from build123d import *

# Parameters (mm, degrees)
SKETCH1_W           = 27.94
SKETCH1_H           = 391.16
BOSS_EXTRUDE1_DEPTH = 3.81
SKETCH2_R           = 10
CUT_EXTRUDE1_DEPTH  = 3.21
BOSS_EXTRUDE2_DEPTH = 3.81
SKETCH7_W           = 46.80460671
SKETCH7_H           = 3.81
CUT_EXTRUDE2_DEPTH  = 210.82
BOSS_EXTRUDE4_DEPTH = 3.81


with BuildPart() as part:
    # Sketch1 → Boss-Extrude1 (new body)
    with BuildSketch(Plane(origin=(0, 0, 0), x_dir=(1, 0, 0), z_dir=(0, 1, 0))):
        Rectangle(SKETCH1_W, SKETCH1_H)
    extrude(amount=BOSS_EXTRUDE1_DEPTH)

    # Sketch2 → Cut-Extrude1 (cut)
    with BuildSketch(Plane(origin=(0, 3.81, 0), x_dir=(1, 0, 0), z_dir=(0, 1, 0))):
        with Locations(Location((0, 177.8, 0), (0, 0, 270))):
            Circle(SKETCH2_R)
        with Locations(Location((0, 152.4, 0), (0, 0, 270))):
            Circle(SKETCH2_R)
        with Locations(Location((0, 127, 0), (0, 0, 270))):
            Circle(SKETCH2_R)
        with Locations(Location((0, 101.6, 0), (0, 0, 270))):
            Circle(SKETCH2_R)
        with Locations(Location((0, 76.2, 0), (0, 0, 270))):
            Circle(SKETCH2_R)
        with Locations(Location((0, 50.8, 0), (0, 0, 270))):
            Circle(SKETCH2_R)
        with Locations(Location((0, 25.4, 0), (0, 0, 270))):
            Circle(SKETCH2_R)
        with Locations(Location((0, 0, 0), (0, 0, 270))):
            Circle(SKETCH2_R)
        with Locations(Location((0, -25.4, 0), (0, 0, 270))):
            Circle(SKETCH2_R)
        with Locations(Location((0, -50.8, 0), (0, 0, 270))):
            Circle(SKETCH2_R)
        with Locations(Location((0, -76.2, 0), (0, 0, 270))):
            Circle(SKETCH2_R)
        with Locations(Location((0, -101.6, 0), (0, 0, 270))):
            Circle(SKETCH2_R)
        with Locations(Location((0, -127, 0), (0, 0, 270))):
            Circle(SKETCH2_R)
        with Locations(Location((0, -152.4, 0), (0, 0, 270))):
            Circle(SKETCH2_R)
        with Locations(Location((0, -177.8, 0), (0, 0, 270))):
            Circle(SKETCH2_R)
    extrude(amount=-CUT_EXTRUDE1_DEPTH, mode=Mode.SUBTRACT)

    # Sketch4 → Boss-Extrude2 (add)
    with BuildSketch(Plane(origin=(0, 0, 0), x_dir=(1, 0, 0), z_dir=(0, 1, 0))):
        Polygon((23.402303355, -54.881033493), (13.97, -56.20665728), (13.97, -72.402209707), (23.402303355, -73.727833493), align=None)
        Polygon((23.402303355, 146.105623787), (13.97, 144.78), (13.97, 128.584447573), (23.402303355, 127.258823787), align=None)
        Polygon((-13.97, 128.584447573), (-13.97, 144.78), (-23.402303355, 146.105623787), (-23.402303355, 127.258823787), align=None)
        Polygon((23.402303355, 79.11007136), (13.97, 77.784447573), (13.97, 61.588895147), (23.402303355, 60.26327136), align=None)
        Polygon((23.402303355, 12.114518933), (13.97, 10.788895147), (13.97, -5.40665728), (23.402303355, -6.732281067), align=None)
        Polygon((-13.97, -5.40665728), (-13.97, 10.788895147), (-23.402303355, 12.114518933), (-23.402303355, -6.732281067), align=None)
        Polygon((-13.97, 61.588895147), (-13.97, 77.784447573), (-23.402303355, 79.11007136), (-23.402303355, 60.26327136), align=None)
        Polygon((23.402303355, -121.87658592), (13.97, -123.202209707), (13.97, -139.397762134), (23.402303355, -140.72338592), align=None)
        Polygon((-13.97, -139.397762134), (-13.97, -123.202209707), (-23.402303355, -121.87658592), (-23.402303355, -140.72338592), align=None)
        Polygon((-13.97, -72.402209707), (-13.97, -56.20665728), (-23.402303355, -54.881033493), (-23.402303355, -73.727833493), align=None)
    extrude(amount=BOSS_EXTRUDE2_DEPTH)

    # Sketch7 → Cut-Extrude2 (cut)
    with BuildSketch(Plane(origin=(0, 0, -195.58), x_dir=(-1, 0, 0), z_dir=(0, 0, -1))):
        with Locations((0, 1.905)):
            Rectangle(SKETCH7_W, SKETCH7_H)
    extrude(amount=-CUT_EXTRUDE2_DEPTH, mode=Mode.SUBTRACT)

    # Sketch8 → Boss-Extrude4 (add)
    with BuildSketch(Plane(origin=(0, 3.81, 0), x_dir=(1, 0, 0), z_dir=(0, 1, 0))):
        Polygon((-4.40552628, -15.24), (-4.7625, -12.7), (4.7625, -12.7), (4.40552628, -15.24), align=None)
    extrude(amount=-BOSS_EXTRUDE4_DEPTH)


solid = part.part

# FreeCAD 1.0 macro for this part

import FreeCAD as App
import Part
import Sketcher

V = App.Vector
Q = App.Units.Quantity


def add_polygon(sketch, points):
    """Adds a closed chain of lines whose ends are joined by coincident constraints."""
    first, n = sketch.GeometryCount, len(points)
    for a, b in zip(points, points[1:] + points[:1]):
        sketch.addGeometry(Part.LineSegment(App.Vector(*a, 0), App.Vector(*b, 0)), False)
    for i in range(n):
        sketch.addConstraint(Sketcher.Constraint("Coincident", first + i, 2, first + (i + 1) % n, 1))

doc = App.newDocument("Part")
body = doc.addObject("PartDesign::Body", "Body")

sketch1 = doc.addObject("Sketcher::SketchObject", "Sketch")
body.addObject(sketch1)
sketch1.AttachmentSupport = (doc.XZ_Plane, [""])
sketch1.MapMode = "FlatFace"
add_polygon(sketch1, [(-14, -196), (-14, 196), (14, 196), (14, -196)])
sketch1.addConstraint([
    Sketcher.Constraint("Vertical", 0),
    Sketcher.Constraint("Horizontal", 1),
    Sketcher.Constraint("Vertical", 2),
    Sketcher.Constraint("Horizontal", 3),
    Sketcher.Constraint("Symmetric", 0, 2, 2, 2, -1, 1),
    Sketcher.Constraint("DistanceX", 1, 1, 1, 2, Q("1.1 in")),
    Sketcher.Constraint("DistanceY", 0, 1, 0, 2, Q("15.4 in")),
])
pad1 = doc.addObject("PartDesign::Pad", "Pad")
body.addObject(pad1)
pad1.Profile = sketch1
pad1.Length = Q("0.15 in")
pad1.Reversed = True

sketch2 = doc.addObject("Sketcher::SketchObject", "Sketch001")
body.addObject(sketch2)
sketch2.AttachmentSupport = (doc.XZ_Plane, [""])
sketch2.MapMode = "FlatFace"
sketch2.AttachmentOffset = App.Placement(V(0, 0, -0.15 * 25.4), App.Rotation())
sketch2.addGeometry([
    Part.Circle(V(0, -178, 0), V(0, 0, 1), 10),
    Part.Circle(V(0, -152, 0), V(0, 0, 1), 10),
    Part.Circle(V(0, -127, 0), V(0, 0, 1), 10),
    Part.Circle(V(0, -102, 0), V(0, 0, 1), 10),
    Part.Circle(V(0, -76, 0), V(0, 0, 1), 10),
    Part.Circle(V(0, -51, 0), V(0, 0, 1), 10),
    Part.Circle(V(0, -25, 0), V(0, 0, 1), 10),
    Part.Circle(V(0, 0, 0), V(0, 0, 1), 10),
    Part.Circle(V(0, 25, 0), V(0, 0, 1), 10),
    Part.Circle(V(0, 51, 0), V(0, 0, 1), 10),
    Part.Circle(V(0, 76, 0), V(0, 0, 1), 10),
    Part.Circle(V(0, 102, 0), V(0, 0, 1), 10),
    Part.Circle(V(0, 127, 0), V(0, 0, 1), 10),
    Part.Circle(V(0, 152, 0), V(0, 0, 1), 10),
    Part.Circle(V(0, 178, 0), V(0, 0, 1), 10),
], False)
sketch2.addConstraint([
    Sketcher.Constraint("Coincident", 7, 3, -1, 1),
    Sketcher.Constraint("Equal", 0, 1),
    Sketcher.Constraint("Equal", 1, 2),
    Sketcher.Constraint("Equal", 2, 3),
    Sketcher.Constraint("Equal", 3, 4),
    Sketcher.Constraint("Equal", 4, 5),
    Sketcher.Constraint("Equal", 5, 6),
    Sketcher.Constraint("Equal", 6, 7),
    Sketcher.Constraint("Equal", 7, 8),
    Sketcher.Constraint("Equal", 8, 9),
    Sketcher.Constraint("Equal", 9, 10),
    Sketcher.Constraint("Equal", 10, 11),
    Sketcher.Constraint("Equal", 11, 12),
    Sketcher.Constraint("Equal", 12, 13),
    Sketcher.Constraint("Equal", 13, 14),
    Sketcher.Constraint("Symmetric", 6, 3, 8, 3, -1, 1),
    Sketcher.Constraint("Symmetric", 5, 3, 9, 3, -1, 1),
    Sketcher.Constraint("Symmetric", 4, 3, 10, 3, -1, 1),
    Sketcher.Constraint("Symmetric", 3, 3, 11, 3, -1, 1),
    Sketcher.Constraint("Symmetric", 2, 3, 12, 3, -1, 1),
    Sketcher.Constraint("Symmetric", 1, 3, 13, 3, -1, 1),
    Sketcher.Constraint("Symmetric", 0, 3, 14, 3, -1, 1),
    Sketcher.Constraint("PointOnObject", 0, 3, -2),
    Sketcher.Constraint("PointOnObject", 1, 3, -2),
    Sketcher.Constraint("PointOnObject", 2, 3, -2),
    Sketcher.Constraint("PointOnObject", 3, 3, -2),
    Sketcher.Constraint("PointOnObject", 4, 3, -2),
    Sketcher.Constraint("PointOnObject", 5, 3, -2),
    Sketcher.Constraint("PointOnObject", 6, 3, -2),
    Sketcher.Constraint("DistanceY", 0, 3, -1, 1, Q("7 in")),
    Sketcher.Constraint("DistanceY", 1, 3, -1, 1, Q("6 in")),
    Sketcher.Constraint("DistanceY", 2, 3, -1, 1, Q("5 in")),
    Sketcher.Constraint("DistanceY", 3, 3, -1, 1, Q("4 in")),
    Sketcher.Constraint("DistanceY", 4, 3, -1, 1, Q("3 in")),
    Sketcher.Constraint("DistanceY", 5, 3, -1, 1, Q("2 in")),
    Sketcher.Constraint("DistanceY", 6, 3, -1, 1, Q("1 in")),
    Sketcher.Constraint("Diameter", 0, 20.0),
])
pocket1 = doc.addObject("PartDesign::Pocket", "Pocket")
body.addObject(pocket1)
pocket1.Profile = sketch2
pocket1.Length = 3.21
pocket1.Reversed = True

sketch3 = doc.addObject("Sketcher::SketchObject", "Sketch002")
body.addObject(sketch3)
sketch3.AttachmentSupport = (doc.XZ_Plane, [""])
sketch3.MapMode = "FlatFace"
add_polygon(sketch3, [(23, 55), (14, 56), (14, 72), (23, 74)])
add_polygon(sketch3, [(23, -146), (14, -145), (14, -129), (23, -127)])
add_polygon(sketch3, [(-14, -129), (-14, -145), (-23, -146), (-23, -127)])
add_polygon(sketch3, [(23, -79), (14, -78), (14, -62), (23, -60)])
add_polygon(sketch3, [(23, -12), (14, -11), (14, 5), (23, 7)])
add_polygon(sketch3, [(-14, 5), (-14, -11), (-23, -12), (-23, 7)])
add_polygon(sketch3, [(-14, -62), (-14, -78), (-23, -79), (-23, -60)])
add_polygon(sketch3, [(23, 122), (14, 123), (14, 139), (23, 141)])
add_polygon(sketch3, [(-14, 139), (-14, 123), (-23, 122), (-23, 141)])
add_polygon(sketch3, [(-14, 72), (-14, 56), (-23, 55), (-23, 74)])
sketch3.addConstraint([
    Sketcher.Constraint("Vertical", 1),
    Sketcher.Constraint("Vertical", 3),
    Sketcher.Constraint("Vertical", 5),
    Sketcher.Constraint("Vertical", 7),
    Sketcher.Constraint("Vertical", 8),
    Sketcher.Constraint("Vertical", 10),
    Sketcher.Constraint("Vertical", 13),
    Sketcher.Constraint("Vertical", 15),
    Sketcher.Constraint("Vertical", 17),
    Sketcher.Constraint("Vertical", 19),
    Sketcher.Constraint("Vertical", 20),
    Sketcher.Constraint("Vertical", 22),
    Sketcher.Constraint("Vertical", 24),
    Sketcher.Constraint("Vertical", 26),
    Sketcher.Constraint("Vertical", 29),
    Sketcher.Constraint("Vertical", 31),
    Sketcher.Constraint("Vertical", 32),
    Sketcher.Constraint("Vertical", 34),
    Sketcher.Constraint("Vertical", 36),
    Sketcher.Constraint("Vertical", 38),
    Sketcher.Constraint("Symmetric", 4, 2, 8, 2, -2),
    Sketcher.Constraint("Symmetric", 7, 2, 9, 2, -2),
    Sketcher.Constraint("Symmetric", 16, 2, 20, 2, -2),
    Sketcher.Constraint("Symmetric", 19, 2, 21, 2, -2),
    Sketcher.Constraint("Symmetric", 12, 2, 24, 2, -2),
    Sketcher.Constraint("Symmetric", 15, 2, 25, 2, -2),
    Sketcher.Constraint("Symmetric", 28, 2, 32, 2, -2),
    Sketcher.Constraint("Symmetric", 31, 2, 33, 2, -2),
    Sketcher.Constraint("Symmetric", 0, 2, 36, 2, -2),
    Sketcher.Constraint("Symmetric", 3, 2, 37, 2, -2),
    Sketcher.Constraint("Parallel", 0, 4),
    Sketcher.Constraint("Parallel", 2, 6),
    Sketcher.Constraint("Parallel", 6, 9),
    Sketcher.Constraint("Parallel", 4, 11),
    Sketcher.Constraint("Parallel", 11, 12),
    Sketcher.Constraint("Parallel", 9, 14),
    Sketcher.Constraint("Parallel", 12, 16),
    Sketcher.Constraint("Parallel", 14, 18),
    Sketcher.Constraint("Parallel", 16, 23),
    Sketcher.Constraint("Parallel", 23, 27),
    Sketcher.Constraint("Parallel", 27, 28),
    Sketcher.Constraint("Parallel", 25, 30),
    Sketcher.Constraint("Parallel", 28, 35),
    Sketcher.Constraint("Parallel", 35, 39),
    Sketcher.Constraint("Horizontal", 6, 2, 10, 2),
    Sketcher.Constraint("Horizontal", 18, 2, 22, 2),
    Sketcher.Constraint("Horizontal", 14, 2, 26, 2),
    Sketcher.Constraint("Horizontal", 30, 2, 34, 2),
    Sketcher.Constraint("Horizontal", 2, 2, 38, 2),
    Sketcher.Constraint("Vertical", 1, 2, 4, 2),
    Sketcher.Constraint("Vertical", 3, 2, 6, 2),
    Sketcher.Constraint("Vertical", 5, 2, 12, 2),
    Sketcher.Constraint("Vertical", 7, 2, 14, 2),
    Sketcher.Constraint("Vertical", 13, 2, 16, 2),
    Sketcher.Constraint("Vertical", 15, 2, 18, 2),
    Sketcher.Constraint("Vertical", 17, 2, 28, 2),
    Sketcher.Constraint("Vertical", 19, 2, 30, 2),
    Sketcher.Constraint("Equal", 1, 5),
    Sketcher.Constraint("Equal", 8, 13),
    Sketcher.Constraint("Equal", 13, 17),
    Sketcher.Constraint("Equal", 24, 29),
    Sketcher.Constraint("Angle", 0, Q("172 deg")),
    Sketcher.Constraint("DistanceY", 5, 2, 12, 2, Q("2 in")),
    Sketcher.Constraint("DistanceY", 13, 2, 16, 2, Q("2 in")),
    Sketcher.Constraint("DistanceY", 17, 2, 0, 2, Q("2 in")),
    Sketcher.Constraint("DistanceY", 1, 2, 28, 2, Q("2 in")),
    Sketcher.Constraint("DistanceY", 4, 2, -1, 1, Q("5.7 in")),
    Sketcher.Constraint("DistanceX", 8, 2, 4, 2, Q("1.1 in")),
    Sketcher.Constraint("DistanceY", 3, 2, 3, 1, Q("0.742 in")),
    Sketcher.Constraint("Distance", 0, Q("0.375 in")),
])
pad2 = doc.addObject("PartDesign::Pad", "Pad001")
body.addObject(pad2)
pad2.Profile = sketch3
pad2.Length = Q("0.15 in")
pad2.Reversed = True

sketch4 = doc.addObject("Sketcher::SketchObject", "Sketch003")
body.addObject(sketch4)
sketch4.AttachmentSupport = (doc.XY_Plane, [""])
sketch4.MapMode = "FlatFace"
sketch4.AttachmentOffset = App.Placement(V(0, 0, -7.7 * 25.4), App.Rotation())
add_polygon(sketch4, [(23.4, 3.8), (23.4, 0), (-23.4, 0), (-23.4, 3.8)])
sketch4.addConstraint([
    Sketcher.Constraint("Vertical", 0),
    Sketcher.Constraint("Horizontal", 1),
    Sketcher.Constraint("Vertical", 2),
    Sketcher.Constraint("Horizontal", 3),
    Sketcher.Constraint("Symmetric", 0, 2, 1, 2, -1, 1),
    Sketcher.Constraint("DistanceY", 0, 2, 0, 1, Q("0.15 in")),
    Sketcher.Constraint("DistanceX", 1, 2, 1, 1, 46.804607),
])
pocket2 = doc.addObject("PartDesign::Pocket", "Pocket001")
body.addObject(pocket2)
pocket2.Profile = sketch4
pocket2.Length = Q("8.3 in")
pocket2.Reversed = True

sketch5 = doc.addObject("Sketcher::SketchObject", "Sketch004")
body.addObject(sketch5)
sketch5.AttachmentSupport = (doc.XZ_Plane, [""])
sketch5.MapMode = "FlatFace"
sketch5.AttachmentOffset = App.Placement(V(0, 0, -0.15 * 25.4), App.Rotation())
add_polygon(sketch5, [(-4.8, 12.7), (-4.4, 15.2), (4.4, 15.2), (4.8, 12.7)])
sketch5.addConstraint([
    Sketcher.Constraint("Horizontal", 1),
    Sketcher.Constraint("Horizontal", 3),
    Sketcher.Constraint("Equal", 0, 2),
    Sketcher.Constraint("Angle", 0, Q("82 deg")),
    Sketcher.Constraint("DistanceY", -1, 1, 0, 2, Q("0.6 in")),
    Sketcher.Constraint("DistanceY", -1, 1, 2, 2, Q("0.5 in")),
    Sketcher.Constraint("DistanceX", 3, 2, 3, 1, Q("0.375 in")),
    Sketcher.Constraint("DistanceX", -1, 1, 2, 2, Q("0.1875 in")),
])
pad3 = doc.addObject("PartDesign::Pad", "Pad002")
body.addObject(pad3)
pad3.Profile = sketch5
pad3.Length = Q("0.15 in")

doc.recompute()
